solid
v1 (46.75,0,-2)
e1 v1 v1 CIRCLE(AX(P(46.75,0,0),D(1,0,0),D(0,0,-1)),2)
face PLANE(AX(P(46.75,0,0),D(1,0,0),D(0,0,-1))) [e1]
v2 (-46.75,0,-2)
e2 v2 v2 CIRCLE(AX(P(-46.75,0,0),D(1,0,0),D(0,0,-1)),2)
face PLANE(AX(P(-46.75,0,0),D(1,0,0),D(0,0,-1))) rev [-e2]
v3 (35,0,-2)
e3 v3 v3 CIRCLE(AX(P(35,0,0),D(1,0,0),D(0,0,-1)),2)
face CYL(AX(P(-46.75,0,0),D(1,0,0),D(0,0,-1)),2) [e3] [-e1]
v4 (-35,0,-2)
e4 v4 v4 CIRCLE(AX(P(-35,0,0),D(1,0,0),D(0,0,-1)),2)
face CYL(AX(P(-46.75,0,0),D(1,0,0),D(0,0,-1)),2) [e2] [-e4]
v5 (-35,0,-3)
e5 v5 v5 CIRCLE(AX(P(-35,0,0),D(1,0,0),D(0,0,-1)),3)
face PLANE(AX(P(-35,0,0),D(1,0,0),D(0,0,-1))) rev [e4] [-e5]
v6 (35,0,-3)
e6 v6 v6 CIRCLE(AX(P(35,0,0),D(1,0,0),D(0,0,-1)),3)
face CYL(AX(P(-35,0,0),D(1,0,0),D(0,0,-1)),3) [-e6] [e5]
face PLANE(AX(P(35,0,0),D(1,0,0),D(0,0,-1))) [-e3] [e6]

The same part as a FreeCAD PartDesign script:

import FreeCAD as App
import Part
import Sketcher
Q = App.Units.Quantity

doc = App.newDocument("Part")
params = doc.addObject("Spreadsheet::Sheet", "Params")
for row, (alias, value) in enumerate([
    ("sketch1_diameter", "6 mm"),
    ("pad1_length", "35 mm"),
    ("pad1_length2", "35 mm"),
    ("sketch2_diameter", "4 mm"),
    ("pad2_length", "46.75 mm"),
    ("pad2_length2", "46.75 mm"),
], start=1):
    params.set(f"A{row}", alias)
    params.set(f"B{row}", "=" + value)
    params.setAlias(f"B{row}", alias)

body = doc.addObject("PartDesign::Body", "Body")

# Sketch on YZ plane
sketch1 = body.newObject("Sketcher::SketchObject", "Sketch")
sketch1.AttachmentSupport = (doc.getObject("YZ_Plane"), [""])
sketch1.MapMode = "FlatFace"
sketch1.addGeometry(Part.Circle(App.Vector(0, 0, 0), App.Vector(0, 0, 1), 3), False)
sketch1.addConstraint(Sketcher.Constraint("Coincident", 0, 3, -1, 1))
sketch1.addConstraint(Sketcher.Constraint("Diameter", 0, Q("6 mm")))
sketch1.setExpression("Constraints[1]", "Params.sketch1_diameter")
pad1 = body.newObject("PartDesign::Pad", "Pad")
pad1.Profile = sketch1
pad1.Type = "TwoLengths"
pad1.setExpression("Length", "Params.pad1_length")
pad1.setExpression("Length2", "Params.pad1_length2")

# Sketch on YZ plane
sketch2 = body.newObject("Sketcher::SketchObject", "Sketch001")
sketch2.AttachmentSupport = (doc.getObject("YZ_Plane"), [""])
sketch2.MapMode = "FlatFace"
sketch2.addGeometry(Part.Circle(App.Vector(0, 0, 0), App.Vector(0, 0, 1), 2), False)
sketch2.addConstraint(Sketcher.Constraint("Coincident", 0, 3, -1, 1))
sketch2.addConstraint(Sketcher.Constraint("Diameter", 0, Q("4 mm")))
sketch2.setExpression("Constraints[1]", "Params.sketch2_diameter")
pad2 = body.newObject("PartDesign::Pad", "Pad001")
pad2.Profile = sketch2
pad2.Type = "TwoLengths"
pad2.setExpression("Length", "Params.pad2_length")
pad2.setExpression("Length2", "Params.pad2_length2")

doc.recompute()
